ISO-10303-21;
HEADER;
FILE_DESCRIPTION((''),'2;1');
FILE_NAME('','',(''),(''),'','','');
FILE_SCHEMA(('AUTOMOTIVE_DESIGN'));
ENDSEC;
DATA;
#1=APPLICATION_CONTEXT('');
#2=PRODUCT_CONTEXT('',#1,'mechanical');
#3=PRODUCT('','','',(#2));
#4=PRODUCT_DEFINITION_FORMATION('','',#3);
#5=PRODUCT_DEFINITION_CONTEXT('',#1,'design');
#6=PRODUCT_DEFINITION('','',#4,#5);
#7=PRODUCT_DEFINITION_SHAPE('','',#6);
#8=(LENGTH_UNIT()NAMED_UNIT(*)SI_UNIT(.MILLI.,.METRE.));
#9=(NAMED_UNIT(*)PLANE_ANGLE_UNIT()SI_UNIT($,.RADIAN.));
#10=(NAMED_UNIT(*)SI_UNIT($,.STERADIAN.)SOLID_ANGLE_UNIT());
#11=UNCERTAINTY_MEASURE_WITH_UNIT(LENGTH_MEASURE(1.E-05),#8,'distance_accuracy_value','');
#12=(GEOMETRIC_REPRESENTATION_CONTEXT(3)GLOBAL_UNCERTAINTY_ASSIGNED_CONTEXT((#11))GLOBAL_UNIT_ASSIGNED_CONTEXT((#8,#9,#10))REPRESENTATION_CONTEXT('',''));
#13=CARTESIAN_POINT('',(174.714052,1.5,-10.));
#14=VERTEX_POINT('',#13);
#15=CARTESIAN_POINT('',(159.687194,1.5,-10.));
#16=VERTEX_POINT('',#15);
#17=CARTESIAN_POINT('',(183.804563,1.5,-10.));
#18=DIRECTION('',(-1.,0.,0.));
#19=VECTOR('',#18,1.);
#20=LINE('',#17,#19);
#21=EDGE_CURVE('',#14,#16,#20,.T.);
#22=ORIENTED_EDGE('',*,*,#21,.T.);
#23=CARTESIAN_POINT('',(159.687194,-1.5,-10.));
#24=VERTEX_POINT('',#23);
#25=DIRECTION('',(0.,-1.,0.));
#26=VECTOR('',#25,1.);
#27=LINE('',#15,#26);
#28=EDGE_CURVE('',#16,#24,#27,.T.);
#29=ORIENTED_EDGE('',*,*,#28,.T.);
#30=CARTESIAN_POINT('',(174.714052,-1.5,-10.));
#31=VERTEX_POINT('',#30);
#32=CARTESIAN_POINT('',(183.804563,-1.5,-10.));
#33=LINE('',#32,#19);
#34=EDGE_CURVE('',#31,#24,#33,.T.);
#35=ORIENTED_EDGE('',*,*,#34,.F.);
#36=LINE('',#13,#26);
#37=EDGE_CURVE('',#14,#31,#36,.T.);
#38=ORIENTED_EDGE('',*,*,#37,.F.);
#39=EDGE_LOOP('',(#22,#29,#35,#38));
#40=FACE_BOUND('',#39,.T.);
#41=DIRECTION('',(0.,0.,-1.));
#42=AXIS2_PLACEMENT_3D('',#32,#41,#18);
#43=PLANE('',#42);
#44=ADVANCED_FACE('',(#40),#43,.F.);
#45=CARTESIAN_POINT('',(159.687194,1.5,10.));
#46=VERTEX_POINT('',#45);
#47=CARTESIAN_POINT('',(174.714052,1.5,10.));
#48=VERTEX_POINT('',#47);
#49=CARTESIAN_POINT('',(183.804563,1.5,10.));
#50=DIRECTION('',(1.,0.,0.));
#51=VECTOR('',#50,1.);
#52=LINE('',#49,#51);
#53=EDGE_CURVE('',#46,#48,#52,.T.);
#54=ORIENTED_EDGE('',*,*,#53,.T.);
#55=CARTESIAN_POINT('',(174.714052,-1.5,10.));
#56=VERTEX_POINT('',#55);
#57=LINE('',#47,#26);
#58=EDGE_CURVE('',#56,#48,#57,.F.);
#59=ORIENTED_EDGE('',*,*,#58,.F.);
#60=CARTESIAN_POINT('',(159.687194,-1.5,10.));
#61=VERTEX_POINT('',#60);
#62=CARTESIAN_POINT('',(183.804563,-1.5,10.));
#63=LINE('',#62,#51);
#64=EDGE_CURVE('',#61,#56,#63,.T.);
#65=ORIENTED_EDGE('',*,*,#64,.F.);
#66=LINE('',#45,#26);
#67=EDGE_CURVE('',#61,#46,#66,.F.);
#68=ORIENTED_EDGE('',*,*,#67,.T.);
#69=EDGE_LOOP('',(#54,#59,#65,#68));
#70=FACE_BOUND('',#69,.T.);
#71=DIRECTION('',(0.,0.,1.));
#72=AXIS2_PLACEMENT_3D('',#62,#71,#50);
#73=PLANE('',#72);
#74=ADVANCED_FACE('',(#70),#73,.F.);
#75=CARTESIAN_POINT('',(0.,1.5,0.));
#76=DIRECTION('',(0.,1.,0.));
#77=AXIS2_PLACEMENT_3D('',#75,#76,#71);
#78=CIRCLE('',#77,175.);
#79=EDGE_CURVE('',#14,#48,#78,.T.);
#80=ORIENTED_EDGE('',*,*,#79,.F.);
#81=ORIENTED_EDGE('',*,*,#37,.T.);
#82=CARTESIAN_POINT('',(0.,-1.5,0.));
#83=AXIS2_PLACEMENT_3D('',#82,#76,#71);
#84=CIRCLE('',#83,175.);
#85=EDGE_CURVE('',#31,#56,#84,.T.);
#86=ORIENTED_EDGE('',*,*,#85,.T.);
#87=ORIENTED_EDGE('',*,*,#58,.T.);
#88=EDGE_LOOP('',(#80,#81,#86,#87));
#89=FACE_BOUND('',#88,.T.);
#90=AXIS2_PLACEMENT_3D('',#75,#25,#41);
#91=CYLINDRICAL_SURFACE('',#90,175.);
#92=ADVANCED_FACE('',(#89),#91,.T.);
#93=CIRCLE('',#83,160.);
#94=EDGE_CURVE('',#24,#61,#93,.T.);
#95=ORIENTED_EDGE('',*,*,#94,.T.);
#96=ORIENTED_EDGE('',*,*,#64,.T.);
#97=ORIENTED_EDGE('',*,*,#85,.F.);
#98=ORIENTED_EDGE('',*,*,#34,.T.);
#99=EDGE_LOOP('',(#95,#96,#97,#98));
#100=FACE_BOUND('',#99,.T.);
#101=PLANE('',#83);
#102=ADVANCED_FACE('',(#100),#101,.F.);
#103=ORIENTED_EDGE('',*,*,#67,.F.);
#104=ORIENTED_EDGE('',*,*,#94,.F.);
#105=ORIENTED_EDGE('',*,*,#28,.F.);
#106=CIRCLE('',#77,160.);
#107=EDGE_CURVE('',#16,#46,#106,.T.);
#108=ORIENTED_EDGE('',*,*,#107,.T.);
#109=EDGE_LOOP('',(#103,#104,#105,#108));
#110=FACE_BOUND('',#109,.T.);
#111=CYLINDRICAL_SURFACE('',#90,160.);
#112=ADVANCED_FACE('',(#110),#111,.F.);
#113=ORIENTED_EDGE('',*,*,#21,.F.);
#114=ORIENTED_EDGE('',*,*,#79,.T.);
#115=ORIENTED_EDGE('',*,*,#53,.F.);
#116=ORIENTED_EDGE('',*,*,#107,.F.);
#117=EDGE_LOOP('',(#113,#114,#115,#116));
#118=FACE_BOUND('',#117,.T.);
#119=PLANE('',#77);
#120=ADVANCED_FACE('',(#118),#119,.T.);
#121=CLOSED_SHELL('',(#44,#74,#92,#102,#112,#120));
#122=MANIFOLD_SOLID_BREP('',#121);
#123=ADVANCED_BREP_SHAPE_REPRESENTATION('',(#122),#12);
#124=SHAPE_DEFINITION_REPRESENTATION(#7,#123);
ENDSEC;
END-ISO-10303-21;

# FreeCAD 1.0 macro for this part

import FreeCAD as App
import Part
import Sketcher

V = App.Vector


def add_polygon(sketch, points):
    """Adds a closed chain of lines whose ends are joined by coincident constraints."""
    first, n = sketch.GeometryCount, len(points)
    for a, b in zip(points, points[1:] + points[:1]):
        sketch.addGeometry(Part.LineSegment(App.Vector(*a, 0), App.Vector(*b, 0)), False)
    for i in range(n):
        sketch.addConstraint(Sketcher.Constraint("Coincident", first + i, 2, first + (i + 1) % n, 1))

doc = App.newDocument("Part")
params = doc.addObject("Spreadsheet::Sheet", "Params")
for row, (alias, value) in enumerate([
    ("sketch1_diameter", "350 mm"),
    ("sketch1_diameter2", "320 mm"),
    ("pad1_length", "3 mm"),
    ("sketch2_height", "20 mm"),
], start=1):
    params.set(f"A{row}", alias)
    params.set(f"B{row}", "=" + value)
    params.setAlias(f"B{row}", alias)

body = doc.addObject("PartDesign::Body", "Body")

sketch1 = body.newObject("Sketcher::SketchObject", "Sketch")
sketch1.AttachmentSupport = (doc.getObject("XZ_Plane"), [""])
sketch1.MapMode = "FlatFace"
sketch1.addGeometry([
    Part.Circle(V(0, 0, 0), V(0, 0, 1), 175),
    Part.Circle(V(0, 0, 0), V(0, 0, 1), 160),
], False)
sketch1.addConstraint([
    Sketcher.Constraint("Coincident", 0, 3, -1, 1),
    Sketcher.Constraint("Coincident", 1, 3, -1, 1),
    Sketcher.Constraint("Diameter", 0, 350.0),
    Sketcher.Constraint("Diameter", 1, 320.0),
])
sketch1.setExpression("Constraints[2]", "Params.sketch1_diameter")
sketch1.setExpression("Constraints[3]", "Params.sketch1_diameter2")
pad1 = body.newObject("PartDesign::Pad", "Pad")
pad1.Profile = sketch1
pad1.setExpression("Length", "Params.pad1_length")
pad1.Midplane = True

sketch2 = body.newObject("Sketcher::SketchObject", "Sketch001")
sketch2.AttachmentSupport = (doc.getObject("XZ_Plane"), [""])
sketch2.MapMode = "FlatFace"
add_polygon(sketch2, [(151, -10), (151, 10), (184, 10), (184, -10)])
sketch2.addConstraint([
    Sketcher.Constraint("Vertical", 0),
    Sketcher.Constraint("Horizontal", 1),
    Sketcher.Constraint("Vertical", 2),
    Sketcher.Constraint("Horizontal", 3),
    Sketcher.Constraint("DistanceY", 0, 1, 0, 2, 20.0),
    Sketcher.Constraint("DistanceY", -1, 1, 0, 2, 10.0),
    Sketcher.Constraint("DistanceX", 1, 1, 1, 2, 32.609126),
    Sketcher.Constraint("DistanceX", -1, 1, 0, 2, 151.195437),
])
sketch2.setExpression("Constraints[8]", "Params.sketch2_height")
pocket1 = body.newObject("PartDesign::Pocket", "Pocket")
pocket1.Profile = sketch2
pocket1.Type = "ThroughAll"
pocket1.Midplane = True

doc.recompute()
